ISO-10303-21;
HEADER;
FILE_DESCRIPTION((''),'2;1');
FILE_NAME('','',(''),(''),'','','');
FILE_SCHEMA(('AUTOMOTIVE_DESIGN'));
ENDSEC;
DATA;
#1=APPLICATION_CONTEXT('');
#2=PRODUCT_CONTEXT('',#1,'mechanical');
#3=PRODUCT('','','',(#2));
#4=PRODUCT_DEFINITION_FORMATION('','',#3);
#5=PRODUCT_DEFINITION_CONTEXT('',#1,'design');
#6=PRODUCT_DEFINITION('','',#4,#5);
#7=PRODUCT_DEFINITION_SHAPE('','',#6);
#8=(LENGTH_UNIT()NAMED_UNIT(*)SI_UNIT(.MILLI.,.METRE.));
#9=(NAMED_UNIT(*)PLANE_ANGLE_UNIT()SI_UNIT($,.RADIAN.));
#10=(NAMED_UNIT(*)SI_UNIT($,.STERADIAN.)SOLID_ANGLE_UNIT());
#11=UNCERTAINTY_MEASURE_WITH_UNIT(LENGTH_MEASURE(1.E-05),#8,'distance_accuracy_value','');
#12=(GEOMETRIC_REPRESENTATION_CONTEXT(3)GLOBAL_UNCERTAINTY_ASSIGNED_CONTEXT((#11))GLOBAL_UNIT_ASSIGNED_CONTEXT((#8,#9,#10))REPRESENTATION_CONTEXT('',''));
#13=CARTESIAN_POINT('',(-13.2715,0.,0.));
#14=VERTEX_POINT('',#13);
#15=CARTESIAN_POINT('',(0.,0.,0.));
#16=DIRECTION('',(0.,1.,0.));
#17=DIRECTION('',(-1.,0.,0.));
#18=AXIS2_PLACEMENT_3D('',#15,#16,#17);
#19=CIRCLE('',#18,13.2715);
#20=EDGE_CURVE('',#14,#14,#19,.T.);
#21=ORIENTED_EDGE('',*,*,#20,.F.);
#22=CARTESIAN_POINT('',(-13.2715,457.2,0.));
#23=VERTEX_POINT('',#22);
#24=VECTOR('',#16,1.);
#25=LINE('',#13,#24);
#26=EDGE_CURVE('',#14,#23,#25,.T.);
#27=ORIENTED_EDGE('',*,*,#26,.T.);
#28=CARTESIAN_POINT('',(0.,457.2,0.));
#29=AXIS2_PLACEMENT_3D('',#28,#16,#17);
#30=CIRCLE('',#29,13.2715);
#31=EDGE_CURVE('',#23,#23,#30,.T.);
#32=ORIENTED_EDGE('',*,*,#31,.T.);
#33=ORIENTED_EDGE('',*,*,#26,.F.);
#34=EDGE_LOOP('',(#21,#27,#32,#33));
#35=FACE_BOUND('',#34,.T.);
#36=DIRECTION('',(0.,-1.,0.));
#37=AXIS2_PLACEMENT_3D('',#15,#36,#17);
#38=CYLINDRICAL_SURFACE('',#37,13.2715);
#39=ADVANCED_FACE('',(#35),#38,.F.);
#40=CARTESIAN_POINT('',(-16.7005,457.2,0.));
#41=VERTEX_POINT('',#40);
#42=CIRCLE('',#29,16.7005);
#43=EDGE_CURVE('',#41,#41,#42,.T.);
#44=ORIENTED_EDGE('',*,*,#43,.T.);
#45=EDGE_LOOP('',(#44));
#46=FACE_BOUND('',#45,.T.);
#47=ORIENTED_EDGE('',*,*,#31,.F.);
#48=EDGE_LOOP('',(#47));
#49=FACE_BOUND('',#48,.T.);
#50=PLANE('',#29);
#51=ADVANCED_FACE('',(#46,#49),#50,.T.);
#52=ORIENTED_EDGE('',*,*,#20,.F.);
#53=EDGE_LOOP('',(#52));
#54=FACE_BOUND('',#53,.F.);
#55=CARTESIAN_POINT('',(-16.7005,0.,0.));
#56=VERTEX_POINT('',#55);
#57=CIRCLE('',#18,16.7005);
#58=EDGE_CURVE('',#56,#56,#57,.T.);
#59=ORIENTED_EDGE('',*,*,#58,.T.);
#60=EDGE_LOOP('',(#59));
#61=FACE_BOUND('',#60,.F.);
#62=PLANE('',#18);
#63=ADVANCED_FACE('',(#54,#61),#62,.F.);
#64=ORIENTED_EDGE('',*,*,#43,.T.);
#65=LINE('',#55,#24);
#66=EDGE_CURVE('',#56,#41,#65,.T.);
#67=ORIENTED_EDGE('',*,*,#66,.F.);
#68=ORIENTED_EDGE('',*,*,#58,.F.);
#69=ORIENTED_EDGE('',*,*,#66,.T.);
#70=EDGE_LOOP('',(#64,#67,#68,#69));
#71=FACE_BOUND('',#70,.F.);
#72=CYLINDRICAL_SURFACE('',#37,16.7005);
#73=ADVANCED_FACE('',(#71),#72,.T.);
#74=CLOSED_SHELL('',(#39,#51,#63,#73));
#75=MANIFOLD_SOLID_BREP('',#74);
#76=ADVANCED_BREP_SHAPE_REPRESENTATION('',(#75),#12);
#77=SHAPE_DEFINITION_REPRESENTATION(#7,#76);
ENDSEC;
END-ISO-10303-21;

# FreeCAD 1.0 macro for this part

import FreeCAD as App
import Part
import Sketcher

V = App.Vector
Q = App.Units.Quantity

doc = App.newDocument("Part")
body = doc.addObject("PartDesign::Body", "Body")

sketch1 = body.newObject("Sketcher::SketchObject", "Sketch")
sketch1.AttachmentSupport = (doc.getObject("XZ_Plane"), [""])
sketch1.MapMode = "FlatFace"
sketch1.addGeometry(Part.Circle(V(0, 0, 0), V(0, 0, 1), 17), False)
sketch1.addGeometry(Part.Circle(V(0, 0, 0), V(0, 0, 1), 13), False)
sketch1.addConstraint(Sketcher.Constraint("Coincident", 0, 3, -1, 1))
sketch1.addConstraint(Sketcher.Constraint("Coincident", 1, 3, -1, 1))
sketch1.addConstraint(Sketcher.Constraint("Diameter", 0, Q("1.315 in")))
sketch1.addConstraint(Sketcher.Constraint("Diameter", 1, Q("1.045 in")))
pad1 = body.newObject("PartDesign::Pad", "Pad")
pad1.Profile = sketch1
pad1.Length = Q("18 in")
pad1.Reversed = True

doc.recompute()
